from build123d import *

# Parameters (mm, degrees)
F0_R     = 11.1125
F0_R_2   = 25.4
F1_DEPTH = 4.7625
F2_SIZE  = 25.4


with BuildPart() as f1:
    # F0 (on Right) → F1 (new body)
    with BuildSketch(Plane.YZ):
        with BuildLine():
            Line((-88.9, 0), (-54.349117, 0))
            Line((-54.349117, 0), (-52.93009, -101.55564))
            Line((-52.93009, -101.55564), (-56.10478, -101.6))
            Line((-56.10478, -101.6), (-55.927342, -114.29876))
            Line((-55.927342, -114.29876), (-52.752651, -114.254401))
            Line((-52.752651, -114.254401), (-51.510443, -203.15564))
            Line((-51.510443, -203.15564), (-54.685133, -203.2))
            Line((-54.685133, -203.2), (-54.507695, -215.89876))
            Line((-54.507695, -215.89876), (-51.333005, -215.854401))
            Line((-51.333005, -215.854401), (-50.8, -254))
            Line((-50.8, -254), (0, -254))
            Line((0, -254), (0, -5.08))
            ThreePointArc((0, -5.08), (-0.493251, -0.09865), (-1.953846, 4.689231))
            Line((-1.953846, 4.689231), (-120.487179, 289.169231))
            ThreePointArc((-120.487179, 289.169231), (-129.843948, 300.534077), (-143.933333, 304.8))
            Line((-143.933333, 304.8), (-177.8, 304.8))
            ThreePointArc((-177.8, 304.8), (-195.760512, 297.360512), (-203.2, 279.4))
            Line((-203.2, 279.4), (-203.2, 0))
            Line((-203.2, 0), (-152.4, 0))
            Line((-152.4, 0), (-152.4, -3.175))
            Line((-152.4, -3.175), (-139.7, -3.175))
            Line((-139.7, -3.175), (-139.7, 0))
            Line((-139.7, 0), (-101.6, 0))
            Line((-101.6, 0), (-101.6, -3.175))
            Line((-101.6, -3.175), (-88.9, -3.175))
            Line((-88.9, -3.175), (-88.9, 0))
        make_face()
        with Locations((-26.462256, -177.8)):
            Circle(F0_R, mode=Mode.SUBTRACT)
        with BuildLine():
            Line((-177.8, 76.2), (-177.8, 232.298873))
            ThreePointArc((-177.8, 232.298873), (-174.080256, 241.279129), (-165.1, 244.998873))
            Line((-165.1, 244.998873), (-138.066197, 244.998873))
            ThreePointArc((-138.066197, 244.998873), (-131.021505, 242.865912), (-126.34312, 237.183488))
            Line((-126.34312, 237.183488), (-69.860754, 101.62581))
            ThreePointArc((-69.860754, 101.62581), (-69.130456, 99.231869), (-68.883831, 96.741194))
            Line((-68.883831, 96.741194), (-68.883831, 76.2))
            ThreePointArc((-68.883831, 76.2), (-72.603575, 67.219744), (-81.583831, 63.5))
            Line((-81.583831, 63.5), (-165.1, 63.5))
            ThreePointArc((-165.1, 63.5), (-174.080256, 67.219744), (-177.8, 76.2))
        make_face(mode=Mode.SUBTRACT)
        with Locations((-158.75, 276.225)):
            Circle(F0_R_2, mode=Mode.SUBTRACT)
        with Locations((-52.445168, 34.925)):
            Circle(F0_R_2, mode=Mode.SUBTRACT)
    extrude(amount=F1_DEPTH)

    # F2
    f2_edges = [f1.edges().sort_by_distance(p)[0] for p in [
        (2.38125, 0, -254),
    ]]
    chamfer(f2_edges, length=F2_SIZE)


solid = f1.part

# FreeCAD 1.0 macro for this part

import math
import FreeCAD as App
import Part
import Sketcher
from FreeCAD import Vector
Q = App.Units.Quantity


def edges_at(feature, points):
    """Names of the edges that pass closest to the given points."""
    edges = feature.Shape.Edges
    near = lambda p: min(range(len(edges)), key=lambda i: edges[i].distToShape(Part.Vertex(*p))[0])
    return sorted({f"Edge{near(p) + 1}" for p in points})

doc = App.newDocument("Part")
body = doc.addObject("PartDesign::Body", "Body")

# Sketch on YZ plane
sketch1 = doc.addObject("Sketcher::SketchObject", "Sketch")
body.addObject(sketch1)
sketch1.AttachmentSupport = (doc.YZ_Plane, [""])
sketch1.MapMode = "FlatFace"
sketch1.addGeometry([
    Part.LineSegment(Vector(-88.9, 0, 0), Vector(-54.3, 0, 0)),  # 0
    Part.LineSegment(Vector(-54.3, 0, 0), Vector(-52.9, -101.6, 0)),  # 1
    Part.LineSegment(Vector(-52.9, -101.6, 0), Vector(-56.1, -101.6, 0)),  # 2
    Part.LineSegment(Vector(-56.1, -101.6, 0), Vector(-55.9, -114.3, 0)),  # 3
    Part.LineSegment(Vector(-55.9, -114.3, 0), Vector(-52.8, -114.3, 0)),  # 4
    Part.LineSegment(Vector(-52.8, -114.3, 0), Vector(-51.5, -203.2, 0)),  # 5
    Part.LineSegment(Vector(-51.5, -203.2, 0), Vector(-54.7, -203.2, 0)),  # 6
    Part.LineSegment(Vector(-54.7, -203.2, 0), Vector(-54.5, -215.9, 0)),  # 7
    Part.LineSegment(Vector(-54.5, -215.9, 0), Vector(-51.3, -215.9, 0)),  # 8
    Part.LineSegment(Vector(-51.3, -215.9, 0), Vector(-50.8, -254, 0)),  # 9
    Part.LineSegment(Vector(-50.8, -254, 0), Vector(0, -254, 0)),  # 10
    Part.LineSegment(Vector(0, -254, 0), Vector(0, -5.1, 0)),  # 11
    Part.ArcOfCircle(Part.Circle(Vector(-25.4, -5.1, 0), Vector(0, 0, 1), 25.4), math.radians(0), math.radians(23)),  # 12
    Part.LineSegment(Vector(-2, 4.7, 0), Vector(-120.5, 289.2, 0)),  # 13
    Part.ArcOfCircle(Part.Circle(Vector(-143.9, 279.4, 0), Vector(0, 0, 1), 25.4), math.radians(23), math.radians(90)),  # 14
    Part.LineSegment(Vector(-143.9, 304.8, 0), Vector(-177.8, 304.8, 0)),  # 15
    Part.ArcOfCircle(Part.Circle(Vector(-177.8, 279.4, 0), Vector(0, 0, 1), 25.4), math.radians(90), math.radians(180)),  # 16
    Part.LineSegment(Vector(-203.2, 279.4, 0), Vector(-203.2, 0, 0)),  # 17
    Part.LineSegment(Vector(-203.2, 0, 0), Vector(-152.4, 0, 0)),  # 18
    Part.LineSegment(Vector(-152.4, 0, 0), Vector(-152.4, -3.2, 0)),  # 19
    Part.LineSegment(Vector(-152.4, -3.2, 0), Vector(-139.7, -3.2, 0)),  # 20
    Part.LineSegment(Vector(-139.7, -3.2, 0), Vector(-139.7, 0, 0)),  # 21
    Part.LineSegment(Vector(-139.7, 0, 0), Vector(-101.6, 0, 0)),  # 22
    Part.LineSegment(Vector(-101.6, 0, 0), Vector(-101.6, -3.2, 0)),  # 23
    Part.LineSegment(Vector(-101.6, -3.2, 0), Vector(-88.9, -3.2, 0)),  # 24
    Part.LineSegment(Vector(-88.9, -3.2, 0), Vector(-88.9, 0, 0)),  # 25
    Part.Circle(Vector(-26.5, -177.8, 0), Vector(0, 0, 1), 11.1),  # 26
    Part.Circle(Vector(-52.4, 34.9, 0), Vector(0, 0, 1), 25.4),  # 27
    Part.ArcOfCircle(Part.Circle(Vector(-165.1, 76.2, 0), Vector(0, 0, 1), 12.7), math.radians(-180), math.radians(-90)),  # 28
    Part.LineSegment(Vector(-177.8, 76.2, 0), Vector(-177.8, 232.3, 0)),  # 29
    Part.ArcOfCircle(Part.Circle(Vector(-165.1, 232.3, 0), Vector(0, 0, 1), 12.7), math.radians(90), math.radians(180)),  # 30
    Part.LineSegment(Vector(-165.1, 245, 0), Vector(-138.1, 245, 0)),  # 31
    Part.ArcOfCircle(Part.Circle(Vector(-138.1, 232.3, 0), Vector(0, 0, 1), 12.7), math.radians(23), math.radians(90)),  # 32
    Part.LineSegment(Vector(-126.3, 237.2, 0), Vector(-69.9, 101.6, 0)),  # 33
    Part.ArcOfCircle(Part.Circle(Vector(-81.6, 96.7, 0), Vector(0, 0, 1), 12.7), math.radians(0), math.radians(23)),  # 34
    Part.LineSegment(Vector(-68.9, 96.7, 0), Vector(-68.9, 76.2, 0)),  # 35
    Part.ArcOfCircle(Part.Circle(Vector(-81.6, 76.2, 0), Vector(0, 0, 1), 12.7), math.radians(-90), math.radians(0)),  # 36
    Part.LineSegment(Vector(-81.6, 63.5, 0), Vector(-165.1, 63.5, 0)),  # 37
    Part.Circle(Vector(-158.8, 276.2, 0), Vector(0, 0, 1), 25.4),  # 38
], False)
sketch1.addConstraint([
    Sketcher.Constraint("Coincident", 0, 2, 1, 1),
    Sketcher.Constraint("Coincident", 1, 2, 2, 1),
    Sketcher.Constraint("Coincident", 2, 2, 3, 1),
    Sketcher.Constraint("Coincident", 3, 2, 4, 1),
    Sketcher.Constraint("Coincident", 4, 2, 5, 1),
    Sketcher.Constraint("Coincident", 5, 2, 6, 1),
    Sketcher.Constraint("Coincident", 6, 2, 7, 1),
    Sketcher.Constraint("Coincident", 7, 2, 8, 1),
    Sketcher.Constraint("Coincident", 8, 2, 9, 1),
    Sketcher.Constraint("Coincident", 9, 2, 10, 1),
    Sketcher.Constraint("Coincident", 10, 2, 11, 1),
    Sketcher.Constraint("Tangent", 11, 2, 12, 1),
    Sketcher.Constraint("Tangent", 12, 2, 13, 1),
    Sketcher.Constraint("Tangent", 13, 2, 14, 1),
    Sketcher.Constraint("Tangent", 14, 2, 15, 1),
    Sketcher.Constraint("Tangent", 15, 2, 16, 1),
    Sketcher.Constraint("Tangent", 16, 2, 17, 1),
    Sketcher.Constraint("Coincident", 17, 2, 18, 1),
    Sketcher.Constraint("Coincident", 18, 2, 19, 1),
    Sketcher.Constraint("Coincident", 19, 2, 20, 1),
    Sketcher.Constraint("Coincident", 20, 2, 21, 1),
    Sketcher.Constraint("Coincident", 21, 2, 22, 1),
    Sketcher.Constraint("Coincident", 22, 2, 23, 1),
    Sketcher.Constraint("Coincident", 23, 2, 24, 1),
    Sketcher.Constraint("Coincident", 24, 2, 25, 1),
    Sketcher.Constraint("Coincident", 25, 2, 0, 1),
    Sketcher.Constraint("Tangent", 28, 1, 29, 1),
    Sketcher.Constraint("Tangent", 29, 2, 30, 2),
    Sketcher.Constraint("Tangent", 30, 1, 31, 1),
    Sketcher.Constraint("Tangent", 31, 2, 32, 2),
    Sketcher.Constraint("Tangent", 32, 1, 33, 1),
    Sketcher.Constraint("Tangent", 33, 2, 34, 2),
    Sketcher.Constraint("Tangent", 34, 1, 35, 1),
    Sketcher.Constraint("Tangent", 35, 2, 36, 2),
    Sketcher.Constraint("Tangent", 36, 1, 37, 1),
    Sketcher.Constraint("Tangent", 37, 2, 28, 2),
    Sketcher.Constraint("Horizontal", 0),
    Sketcher.Constraint("Horizontal", 10),
    Sketcher.Constraint("Vertical", 11),
    Sketcher.Constraint("Horizontal", 15),
    Sketcher.Constraint("Vertical", 17),
    Sketcher.Constraint("Horizontal", 18),
    Sketcher.Constraint("Vertical", 19),
    Sketcher.Constraint("Horizontal", 20),
    Sketcher.Constraint("Vertical", 21),
    Sketcher.Constraint("Horizontal", 22),
    Sketcher.Constraint("Vertical", 23),
    Sketcher.Constraint("Horizontal", 24),
    Sketcher.Constraint("Vertical", 25),
    Sketcher.Constraint("Vertical", 29),
    Sketcher.Constraint("Horizontal", 31),
    Sketcher.Constraint("Vertical", 35),
    Sketcher.Constraint("Horizontal", 37),
    Sketcher.Constraint("Equal", 14, 16),
    Sketcher.Constraint("Equal", 16, 27),
    Sketcher.Constraint("Equal", 28, 30),
    Sketcher.Constraint("Equal", 30, 32),
    Sketcher.Constraint("Equal", 32, 36),
    Sketcher.Constraint("Equal", 27, 38),
    Sketcher.Constraint("PointOnObject", 0, 2, -1),
    Sketcher.Constraint("PointOnObject", 10, 2, -2),
    Sketcher.Constraint("PointOnObject", 17, 2, -1),
    Sketcher.Constraint("PointOnObject", 21, 2, -1),
    Sketcher.Constraint("Perpendicular", 1, 2),
    Sketcher.Constraint("Perpendicular", 2, 3),
    Sketcher.Constraint("Perpendicular", 3, 4),
    Sketcher.Constraint("Perpendicular", 4, 5),
    Sketcher.Constraint("Perpendicular", 5, 6),
    Sketcher.Constraint("Perpendicular", 6, 7),
    Sketcher.Constraint("Perpendicular", 7, 8),
    Sketcher.Constraint("Perpendicular", 8, 9),
    Sketcher.Constraint("Parallel", 13, 33),
    Sketcher.Constraint("Horizontal", 20, 2, 23, 2),
    Sketcher.Constraint("Vertical", 15, 2, 28, 1),
    Sketcher.Constraint("Equal", 10, 18),
    Sketcher.Constraint("Equal", 20, 24),
    Sketcher.Constraint("Equal", 2, 4),
    Sketcher.Constraint("Equal", 4, 6),
    Sketcher.Constraint("Equal", 3, 7),
    Sketcher.Constraint("Equal", 6, 8),
    Sketcher.Constraint("Diameter", 27, Q("2 in")),
    Sketcher.Constraint("Radius", 28, Q("0.5 in")),
    Sketcher.Constraint("DistanceX", 10, 1, 10, 2, Q("2 in")),
    Sketcher.Constraint("DistanceY", 17, 2, 17, 1, Q("11 in")),
    Sketcher.Constraint("Diameter", 26, Q("0.875 in")),
    Sketcher.Constraint("DistanceX", 20, 1, 20, 2, Q("0.5 in")),
    Sketcher.Constraint("DistanceX", 22, 1, 22, 2, Q("1.5 in")),
    Sketcher.Constraint("DistanceY", 11, 1, 11, 2, Q("9.8 in")),
    Sketcher.Constraint("DistanceX", 16, 3, -1, 1, Q("7 in")),
    Sketcher.Constraint("DistanceY", 26, 3, -1, 1, Q("7 in")),
    Sketcher.Constraint("DistanceY", -1, 1, 28, 3, Q("3 in")),
    Sketcher.Constraint("DistanceY", 2, 2, -1, 1, Q("4 in")),
    Sketcher.Constraint("DistanceY", 6, 2, -1, 1, Q("8 in")),
    Sketcher.Constraint("DistanceY", 9, 2, -1, 1, Q("10 in")),
    Sketcher.Constraint("Distance", 3, Q("0.5 in")),
    Sketcher.Constraint("DistanceY", 19, 2, 19, 1, Q("0.125 in")),
    Sketcher.Constraint("DistanceX", 38, 3, -1, 1, Q("6.25 in")),
    Sketcher.Constraint("Distance", 2, Q("0.125 in")),
    Sketcher.Constraint("DistanceY", -1, 1, 27, 3, Q("1.375 in")),
    Sketcher.Constraint("DistanceY", -1, 1, 38, 3, Q("10.875 in")),
    Sketcher.Constraint("Radius", 12, Q("25.400012 mm")),
    Sketcher.Constraint("Radius", 34, Q("12.699986 mm")),
    Sketcher.Constraint("DistanceX", 36, 3, 1, 2, Q("1.1281001 in")),
    Sketcher.Constraint("DistanceX", 37, 2, 37, 1, Q("83.516169 mm")),
    Sketcher.Constraint("DistanceY", 12, 3, 34, 3, Q("101.821199 mm")),
    Sketcher.Constraint("Distance", 33, Q("146.854151 mm")),
    Sketcher.Constraint("DistanceX", 15, 2, 15, 1, Q("33.866667 mm")),
    Sketcher.Constraint("DistanceX", 27, 3, -1, 1, Q("52.445168 mm")),
    Sketcher.Constraint("DistanceX", 14, 3, 26, 3, Q("117.471078 mm")),
])
pad1 = doc.addObject("PartDesign::Pad", "Pad")
body.addObject(pad1)
pad1.Profile = sketch1
pad1.Length = Q("0.1875 in")
doc.recompute()

chamfer = doc.addObject("PartDesign::Chamfer", "Chamfer")
body.addObject(chamfer)
chamfer.Base = (pad1, edges_at(pad1, [(2.381, 0, -254)]))
chamfer.Size = Q("1 in")

doc.recompute()
